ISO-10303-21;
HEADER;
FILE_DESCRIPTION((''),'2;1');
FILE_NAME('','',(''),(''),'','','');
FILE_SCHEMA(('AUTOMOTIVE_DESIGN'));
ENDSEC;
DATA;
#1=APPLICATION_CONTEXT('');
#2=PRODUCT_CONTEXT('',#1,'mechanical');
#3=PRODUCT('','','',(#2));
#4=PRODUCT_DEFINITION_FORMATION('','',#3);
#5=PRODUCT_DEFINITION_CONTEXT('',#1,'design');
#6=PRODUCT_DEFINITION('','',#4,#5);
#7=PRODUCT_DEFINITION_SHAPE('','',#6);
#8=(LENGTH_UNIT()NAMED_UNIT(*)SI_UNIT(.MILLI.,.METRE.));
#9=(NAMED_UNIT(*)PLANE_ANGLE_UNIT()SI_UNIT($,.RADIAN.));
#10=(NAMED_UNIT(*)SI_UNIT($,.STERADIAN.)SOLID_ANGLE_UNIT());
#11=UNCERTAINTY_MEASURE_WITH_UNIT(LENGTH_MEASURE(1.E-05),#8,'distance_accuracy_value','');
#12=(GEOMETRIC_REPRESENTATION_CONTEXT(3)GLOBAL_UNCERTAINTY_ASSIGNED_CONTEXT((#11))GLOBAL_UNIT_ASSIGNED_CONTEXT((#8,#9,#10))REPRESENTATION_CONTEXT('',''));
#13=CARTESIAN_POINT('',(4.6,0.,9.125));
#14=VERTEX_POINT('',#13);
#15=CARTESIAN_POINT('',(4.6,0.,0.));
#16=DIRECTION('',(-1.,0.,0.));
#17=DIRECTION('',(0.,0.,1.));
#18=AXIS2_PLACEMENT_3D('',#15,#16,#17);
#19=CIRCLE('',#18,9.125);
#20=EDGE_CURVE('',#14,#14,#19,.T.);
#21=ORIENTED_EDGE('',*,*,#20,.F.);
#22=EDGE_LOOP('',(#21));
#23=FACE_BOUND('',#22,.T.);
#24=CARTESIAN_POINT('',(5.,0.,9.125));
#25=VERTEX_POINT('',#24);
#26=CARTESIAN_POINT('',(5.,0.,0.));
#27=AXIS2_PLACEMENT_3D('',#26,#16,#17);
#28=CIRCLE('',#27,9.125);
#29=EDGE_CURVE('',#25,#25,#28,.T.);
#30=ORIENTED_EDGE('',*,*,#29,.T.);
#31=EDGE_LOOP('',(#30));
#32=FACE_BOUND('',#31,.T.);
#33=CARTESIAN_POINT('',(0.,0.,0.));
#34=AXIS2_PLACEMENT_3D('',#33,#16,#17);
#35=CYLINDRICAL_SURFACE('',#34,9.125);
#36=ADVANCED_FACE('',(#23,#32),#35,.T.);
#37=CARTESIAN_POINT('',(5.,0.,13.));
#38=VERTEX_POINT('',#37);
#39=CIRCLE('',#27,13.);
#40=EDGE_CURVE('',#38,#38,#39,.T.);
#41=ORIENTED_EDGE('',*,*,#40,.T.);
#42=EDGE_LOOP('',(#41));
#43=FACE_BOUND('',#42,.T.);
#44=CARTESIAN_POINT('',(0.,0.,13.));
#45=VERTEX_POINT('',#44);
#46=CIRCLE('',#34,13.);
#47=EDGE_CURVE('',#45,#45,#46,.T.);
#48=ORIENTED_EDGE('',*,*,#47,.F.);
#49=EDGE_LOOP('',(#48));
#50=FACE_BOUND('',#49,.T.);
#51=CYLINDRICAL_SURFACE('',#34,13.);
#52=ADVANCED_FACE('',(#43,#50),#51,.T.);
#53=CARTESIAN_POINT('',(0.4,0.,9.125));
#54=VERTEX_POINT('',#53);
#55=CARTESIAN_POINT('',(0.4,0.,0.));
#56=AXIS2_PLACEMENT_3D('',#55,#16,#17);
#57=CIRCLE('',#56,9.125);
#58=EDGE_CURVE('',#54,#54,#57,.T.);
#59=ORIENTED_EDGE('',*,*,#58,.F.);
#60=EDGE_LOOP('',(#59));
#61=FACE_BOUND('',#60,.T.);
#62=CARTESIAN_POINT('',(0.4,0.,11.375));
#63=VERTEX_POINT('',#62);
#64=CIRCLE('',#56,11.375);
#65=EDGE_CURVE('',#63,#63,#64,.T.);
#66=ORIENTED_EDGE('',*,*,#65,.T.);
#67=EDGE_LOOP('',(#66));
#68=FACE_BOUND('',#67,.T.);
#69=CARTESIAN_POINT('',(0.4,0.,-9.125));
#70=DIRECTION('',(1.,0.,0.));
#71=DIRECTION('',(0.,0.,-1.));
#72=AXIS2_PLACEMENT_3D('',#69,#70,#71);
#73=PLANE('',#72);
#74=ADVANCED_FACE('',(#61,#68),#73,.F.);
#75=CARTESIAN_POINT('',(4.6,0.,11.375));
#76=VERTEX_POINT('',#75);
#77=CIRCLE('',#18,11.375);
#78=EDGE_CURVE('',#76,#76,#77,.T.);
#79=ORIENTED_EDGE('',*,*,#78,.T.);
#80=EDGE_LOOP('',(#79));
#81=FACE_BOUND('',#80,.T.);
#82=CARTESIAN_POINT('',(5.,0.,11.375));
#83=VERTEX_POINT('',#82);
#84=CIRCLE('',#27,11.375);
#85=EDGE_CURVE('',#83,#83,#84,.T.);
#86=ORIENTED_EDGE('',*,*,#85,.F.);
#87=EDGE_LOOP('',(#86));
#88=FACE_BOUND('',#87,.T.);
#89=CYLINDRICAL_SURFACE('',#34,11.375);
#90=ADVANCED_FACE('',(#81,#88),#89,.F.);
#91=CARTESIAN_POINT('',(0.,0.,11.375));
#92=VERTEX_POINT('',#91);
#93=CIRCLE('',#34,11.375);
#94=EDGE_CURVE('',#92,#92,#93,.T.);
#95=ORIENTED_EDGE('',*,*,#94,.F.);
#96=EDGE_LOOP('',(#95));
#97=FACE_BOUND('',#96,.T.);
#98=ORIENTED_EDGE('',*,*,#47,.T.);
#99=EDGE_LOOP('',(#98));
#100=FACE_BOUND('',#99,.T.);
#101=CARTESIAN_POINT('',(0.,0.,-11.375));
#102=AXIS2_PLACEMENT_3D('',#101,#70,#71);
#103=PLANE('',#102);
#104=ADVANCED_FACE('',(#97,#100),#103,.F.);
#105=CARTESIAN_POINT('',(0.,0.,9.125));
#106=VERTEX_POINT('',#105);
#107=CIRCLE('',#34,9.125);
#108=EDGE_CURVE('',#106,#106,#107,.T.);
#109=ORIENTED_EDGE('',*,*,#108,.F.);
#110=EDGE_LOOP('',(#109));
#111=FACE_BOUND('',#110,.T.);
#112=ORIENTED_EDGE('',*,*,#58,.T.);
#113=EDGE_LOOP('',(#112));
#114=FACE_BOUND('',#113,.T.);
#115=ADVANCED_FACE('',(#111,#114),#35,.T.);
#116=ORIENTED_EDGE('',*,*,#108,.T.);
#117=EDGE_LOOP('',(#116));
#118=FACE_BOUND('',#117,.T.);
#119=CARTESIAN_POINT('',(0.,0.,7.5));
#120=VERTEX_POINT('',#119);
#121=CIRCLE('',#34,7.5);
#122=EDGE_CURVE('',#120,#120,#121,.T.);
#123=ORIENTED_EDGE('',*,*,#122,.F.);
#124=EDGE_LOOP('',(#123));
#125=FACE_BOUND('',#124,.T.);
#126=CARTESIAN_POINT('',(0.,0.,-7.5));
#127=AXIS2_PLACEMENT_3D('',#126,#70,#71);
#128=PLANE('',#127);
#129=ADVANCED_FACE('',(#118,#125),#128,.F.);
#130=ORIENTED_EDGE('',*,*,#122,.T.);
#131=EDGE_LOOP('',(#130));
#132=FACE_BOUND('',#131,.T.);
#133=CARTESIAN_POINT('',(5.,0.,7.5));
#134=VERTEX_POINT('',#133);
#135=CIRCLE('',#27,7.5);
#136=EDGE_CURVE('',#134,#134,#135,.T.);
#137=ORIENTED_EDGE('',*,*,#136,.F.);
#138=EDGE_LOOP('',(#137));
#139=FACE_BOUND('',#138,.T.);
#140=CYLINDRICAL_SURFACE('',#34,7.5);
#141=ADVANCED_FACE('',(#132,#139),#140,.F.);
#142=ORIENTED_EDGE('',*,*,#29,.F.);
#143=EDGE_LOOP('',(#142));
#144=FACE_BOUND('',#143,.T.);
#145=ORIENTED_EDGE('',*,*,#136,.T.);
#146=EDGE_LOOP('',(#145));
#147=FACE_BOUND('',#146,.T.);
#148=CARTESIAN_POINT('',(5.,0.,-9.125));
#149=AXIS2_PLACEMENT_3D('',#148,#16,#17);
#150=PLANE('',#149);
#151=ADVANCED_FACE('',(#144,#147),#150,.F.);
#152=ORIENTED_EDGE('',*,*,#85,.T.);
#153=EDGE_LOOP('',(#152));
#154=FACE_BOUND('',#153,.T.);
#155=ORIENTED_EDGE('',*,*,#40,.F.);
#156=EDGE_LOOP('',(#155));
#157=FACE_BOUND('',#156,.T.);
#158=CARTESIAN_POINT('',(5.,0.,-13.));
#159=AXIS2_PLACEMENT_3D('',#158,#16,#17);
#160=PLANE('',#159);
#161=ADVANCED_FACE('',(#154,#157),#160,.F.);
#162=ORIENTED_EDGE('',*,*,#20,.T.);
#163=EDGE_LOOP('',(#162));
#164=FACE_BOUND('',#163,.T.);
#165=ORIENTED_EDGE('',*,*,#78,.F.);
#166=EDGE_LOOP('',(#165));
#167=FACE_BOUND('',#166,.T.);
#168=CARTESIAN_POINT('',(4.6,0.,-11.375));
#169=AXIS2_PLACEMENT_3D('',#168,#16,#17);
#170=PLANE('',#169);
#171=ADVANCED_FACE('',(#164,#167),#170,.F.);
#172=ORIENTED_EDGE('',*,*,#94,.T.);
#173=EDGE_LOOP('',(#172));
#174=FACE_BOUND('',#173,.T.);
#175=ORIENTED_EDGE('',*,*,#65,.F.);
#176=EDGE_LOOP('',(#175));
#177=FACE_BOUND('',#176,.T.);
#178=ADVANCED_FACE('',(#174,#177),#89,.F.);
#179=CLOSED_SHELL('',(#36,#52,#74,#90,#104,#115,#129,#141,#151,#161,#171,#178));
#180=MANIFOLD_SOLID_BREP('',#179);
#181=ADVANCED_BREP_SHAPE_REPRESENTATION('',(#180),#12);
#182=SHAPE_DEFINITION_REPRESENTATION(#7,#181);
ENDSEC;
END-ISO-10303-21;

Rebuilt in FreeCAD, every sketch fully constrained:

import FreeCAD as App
import Part
import Sketcher
from FreeCAD import Vector

doc = App.newDocument("Part")
body = doc.addObject("PartDesign::Body", "Body")

sketch1 = doc.addObject("Sketcher::SketchObject", "Sketch")
body.addObject(sketch1)
sketch1.AttachmentSupport = (doc.XZ_Plane, [""])
sketch1.MapMode = "FlatFace"
sketch1.addGeometry([
    Part.LineSegment(Vector(0, -9.12, 0), Vector(0, -7.5, 0)),
    Part.LineSegment(Vector(0, -7.5, 0), Vector(5, -7.5, 0)),
    Part.LineSegment(Vector(5, -7.5, 0), Vector(5, -9.12, 0)),
    Part.LineSegment(Vector(5, -9.12, 0), Vector(4.6, -9.12, 0)),
    Part.LineSegment(Vector(4.6, -9.12, 0), Vector(4.6, -11.38, 0)),
    Part.LineSegment(Vector(4.6, -11.38, 0), Vector(5, -11.38, 0)),
    Part.LineSegment(Vector(5, -11.38, 0), Vector(5, -13, 0)),
    Part.LineSegment(Vector(5, -13, 0), Vector(0, -13, 0)),
    Part.LineSegment(Vector(0, -13, 0), Vector(0, -11.38, 0)),
    Part.LineSegment(Vector(0, -11.38, 0), Vector(0.4, -11.38, 0)),
    Part.LineSegment(Vector(0.4, -11.38, 0), Vector(0.4, -9.12, 0)),
    Part.LineSegment(Vector(0.4, -9.12, 0), Vector(0, -9.12, 0)),
], False)
sketch1.addConstraint([
    Sketcher.Constraint("Coincident", 0, 2, 1, 1),
    Sketcher.Constraint("Coincident", 1, 2, 2, 1),
    Sketcher.Constraint("Coincident", 2, 2, 3, 1),
    Sketcher.Constraint("Coincident", 3, 2, 4, 1),
    Sketcher.Constraint("Coincident", 4, 2, 5, 1),
    Sketcher.Constraint("Coincident", 5, 2, 6, 1),
    Sketcher.Constraint("Coincident", 6, 2, 7, 1),
    Sketcher.Constraint("Coincident", 7, 2, 8, 1),
    Sketcher.Constraint("Coincident", 8, 2, 9, 1),
    Sketcher.Constraint("Coincident", 9, 2, 10, 1),
    Sketcher.Constraint("Coincident", 10, 2, 11, 1),
    Sketcher.Constraint("Coincident", 11, 2, 0, 1),
    Sketcher.Constraint("Vertical", 0),
    Sketcher.Constraint("Horizontal", 1),
    Sketcher.Constraint("Vertical", 2),
    Sketcher.Constraint("Horizontal", 3),
    Sketcher.Constraint("Vertical", 4),
    Sketcher.Constraint("Horizontal", 5),
    Sketcher.Constraint("Vertical", 6),
    Sketcher.Constraint("Horizontal", 7),
    Sketcher.Constraint("Vertical", 8),
    Sketcher.Constraint("Horizontal", 9),
    Sketcher.Constraint("Vertical", 10),
    Sketcher.Constraint("Horizontal", 11),
    Sketcher.Constraint("PointOnObject", 0, 2, -2),
    Sketcher.Constraint("PointOnObject", 7, 2, -2),
    Sketcher.Constraint("Horizontal", 5, 2, 8, 2),
    Sketcher.Constraint("Horizontal", 3, 2, 10, 2),
    Sketcher.Constraint("Vertical", 2, 2, 5, 2),
    Sketcher.Constraint("Equal", 5, 9),
    Sketcher.Constraint("Equal", 2, 6),
    Sketcher.Constraint("DistanceX", 1, 1, 1, 2, 5.0),
    Sketcher.Constraint("DistanceX", 3, 2, 3, 1, 0.4),
    Sketcher.Constraint("DistanceY", 6, 2, -1, 1, 13.0),
    Sketcher.Constraint("DistanceY", 4, 2, 4, 1, 2.25),
    Sketcher.Constraint("DistanceY", 0, 2, -1, 1, 7.5),
])
revolution = doc.addObject("PartDesign::Revolution", "Revolution")
body.addObject(revolution)
revolution.Profile = sketch1
revolution.ReferenceAxis = (sketch1, ["H_Axis"])
revolution.Angle = 360

doc.recompute()
